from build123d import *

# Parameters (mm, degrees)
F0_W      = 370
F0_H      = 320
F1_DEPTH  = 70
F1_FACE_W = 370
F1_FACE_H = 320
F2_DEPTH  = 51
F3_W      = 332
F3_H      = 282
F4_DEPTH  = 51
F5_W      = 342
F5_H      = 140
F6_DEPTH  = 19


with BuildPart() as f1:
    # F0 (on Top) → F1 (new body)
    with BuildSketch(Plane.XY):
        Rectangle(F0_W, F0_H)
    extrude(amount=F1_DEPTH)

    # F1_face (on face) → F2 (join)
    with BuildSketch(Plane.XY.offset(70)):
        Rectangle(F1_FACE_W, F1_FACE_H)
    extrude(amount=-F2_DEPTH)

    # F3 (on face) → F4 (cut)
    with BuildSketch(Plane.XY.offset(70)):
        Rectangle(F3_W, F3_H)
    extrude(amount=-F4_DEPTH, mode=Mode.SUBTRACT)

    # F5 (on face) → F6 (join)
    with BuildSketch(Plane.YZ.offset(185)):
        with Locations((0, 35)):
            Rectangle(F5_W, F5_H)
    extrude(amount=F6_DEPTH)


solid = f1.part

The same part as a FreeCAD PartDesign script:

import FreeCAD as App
import Part
import Sketcher

V = App.Vector


def add_polygon(sketch, points):
    """Adds a closed chain of lines whose ends are joined by coincident constraints."""
    first, n = sketch.GeometryCount, len(points)
    for a, b in zip(points, points[1:] + points[:1]):
        sketch.addGeometry(Part.LineSegment(App.Vector(*a, 0), App.Vector(*b, 0)), False)
    for i in range(n):
        sketch.addConstraint(Sketcher.Constraint("Coincident", first + i, 2, first + (i + 1) % n, 1))

doc = App.newDocument("Part")
params = doc.addObject("Spreadsheet::Sheet", "Params")
for row, (alias, value) in enumerate([
    ("sketch1_width", "370 mm"),
    ("sketch1_height", "320 mm"),
    ("pad1_length", "70 mm"),
    ("sketch2_width", "370 mm"),
    ("sketch2_height", "320 mm"),
    ("pad2_length", "51 mm"),
    ("sketch3_width", "332 mm"),
    ("sketch3_height", "282 mm"),
    ("pocket1_length", "51 mm"),
    ("sketch4_width", "342 mm"),
    ("sketch4_height", "140 mm"),
    ("pad3_length", "19 mm"),
], start=1):
    params.set(f"A{row}", alias)
    params.set(f"B{row}", "=" + value)
    params.setAlias(f"B{row}", alias)

body = doc.addObject("PartDesign::Body", "Body")

# Sketch on XY plane
sketch1 = body.newObject("Sketcher::SketchObject", "Sketch")
sketch1.AttachmentSupport = (doc.getObject("XY_Plane"), [""])
sketch1.MapMode = "FlatFace"
add_polygon(sketch1, [(-185, 160), (-185, -160), (185, -160), (185, 160)])  # lines 0-3
sketch1.addConstraint([
    Sketcher.Constraint("Vertical", 0),
    Sketcher.Constraint("Horizontal", 1),
    Sketcher.Constraint("Vertical", 2),
    Sketcher.Constraint("Horizontal", 3),
    Sketcher.Constraint("Symmetric", 0, 2, 2, 2, -1, 1),
    Sketcher.Constraint("DistanceX", 1, 1, 1, 2, 370.0),
    Sketcher.Constraint("DistanceY", 0, 2, 0, 1, 320.0),
])
sketch1.setExpression("Constraints[9]", "Params.sketch1_width")
sketch1.setExpression("Constraints[10]", "Params.sketch1_height")
pad1 = body.newObject("PartDesign::Pad", "Pad")
pad1.Profile = sketch1
pad1.setExpression("Length", "Params.pad1_length")

# Sketch on XY plane
sketch2 = body.newObject("Sketcher::SketchObject", "Sketch001")
sketch2.AttachmentSupport = (doc.getObject("XY_Plane"), [""])
sketch2.MapMode = "FlatFace"
sketch2.AttachmentOffset = App.Placement(V(0, 0, 70), App.Rotation())
add_polygon(sketch2, [(-185, 160), (-185, -160), (185, -160), (185, 160)])  # lines 0-3
sketch2.addConstraint([
    Sketcher.Constraint("Vertical", 0),
    Sketcher.Constraint("Horizontal", 1),
    Sketcher.Constraint("Vertical", 2),
    Sketcher.Constraint("Horizontal", 3),
    Sketcher.Constraint("Symmetric", 0, 2, 2, 2, -1, 1),
    Sketcher.Constraint("DistanceX", 1, 1, 1, 2, 370.0),
    Sketcher.Constraint("DistanceY", 0, 2, 0, 1, 320.0),
])
sketch2.setExpression("Constraints[9]", "Params.sketch2_width")
sketch2.setExpression("Constraints[10]", "Params.sketch2_height")
pad2 = body.newObject("PartDesign::Pad", "Pad001")
pad2.Profile = sketch2
pad2.setExpression("Length", "Params.pad2_length")
pad2.Reversed = True

# Sketch on XY plane
sketch3 = body.newObject("Sketcher::SketchObject", "Sketch002")
sketch3.AttachmentSupport = (doc.getObject("XY_Plane"), [""])
sketch3.MapMode = "FlatFace"
sketch3.AttachmentOffset = App.Placement(V(0, 0, 70), App.Rotation())
add_polygon(sketch3, [(-166, 141), (-166, -141), (166, -141), (166, 141)])  # lines 0-3
sketch3.addConstraint([
    Sketcher.Constraint("Vertical", 0),
    Sketcher.Constraint("Horizontal", 1),
    Sketcher.Constraint("Vertical", 2),
    Sketcher.Constraint("Horizontal", 3),
    Sketcher.Constraint("Symmetric", 0, 2, 2, 2, -1, 1),
    Sketcher.Constraint("DistanceX", 1, 1, 1, 2, 332.0),
    Sketcher.Constraint("DistanceY", 0, 2, 0, 1, 282.0),
])
sketch3.setExpression("Constraints[9]", "Params.sketch3_width")
sketch3.setExpression("Constraints[10]", "Params.sketch3_height")
pocket1 = body.newObject("PartDesign::Pocket", "Pocket")
pocket1.Profile = sketch3
pocket1.setExpression("Length", "Params.pocket1_length")

# Sketch on YZ plane
sketch4 = body.newObject("Sketcher::SketchObject", "Sketch003")
sketch4.AttachmentSupport = (doc.getObject("YZ_Plane"), [""])
sketch4.MapMode = "FlatFace"
sketch4.AttachmentOffset = App.Placement(V(0, 0, 185), App.Rotation())
add_polygon(sketch4, [(-171, 105), (-171, -35), (171, -35), (171, 105)])  # lines 0-3
sketch4.addConstraint([
    Sketcher.Constraint("Vertical", 0),
    Sketcher.Constraint("Horizontal", 1),
    Sketcher.Constraint("Vertical", 2),
    Sketcher.Constraint("Horizontal", 3),
    Sketcher.Constraint("DistanceX", 1, 1, 1, 2, 342.0),
    Sketcher.Constraint("DistanceY", 0, 2, 0, 1, 140.0),
    Sketcher.Constraint("DistanceX", 0, 2, -1, 1, 171.0),
    Sketcher.Constraint("DistanceY", 0, 2, -1, 1, 35.0),
])
sketch4.setExpression("Constraints[8]", "Params.sketch4_width")
sketch4.setExpression("Constraints[9]", "Params.sketch4_height")
pad3 = body.newObject("PartDesign::Pad", "Pad002")
pad3.Profile = sketch4
pad3.setExpression("Length", "Params.pad3_length")

doc.recompute()
